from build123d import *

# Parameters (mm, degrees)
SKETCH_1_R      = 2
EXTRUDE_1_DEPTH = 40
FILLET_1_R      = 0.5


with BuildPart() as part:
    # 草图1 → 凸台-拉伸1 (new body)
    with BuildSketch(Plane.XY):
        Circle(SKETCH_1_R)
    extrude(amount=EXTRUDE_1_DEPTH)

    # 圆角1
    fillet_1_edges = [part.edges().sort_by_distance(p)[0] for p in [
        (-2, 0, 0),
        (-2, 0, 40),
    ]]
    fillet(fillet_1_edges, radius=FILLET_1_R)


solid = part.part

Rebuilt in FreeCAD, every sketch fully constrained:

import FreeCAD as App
import Part
import Sketcher
from FreeCAD import Vector
Q = App.Units.Quantity


def edges_at(feature, points):
    """Names of the edges that pass closest to the given points."""
    edges = feature.Shape.Edges
    near = lambda p: min(range(len(edges)), key=lambda i: edges[i].distToShape(Part.Vertex(*p))[0])
    return sorted({f"Edge{near(p) + 1}" for p in points})

doc = App.newDocument("Part")
body = doc.addObject("PartDesign::Body", "Body")

sketch1 = body.newObject("Sketcher::SketchObject", "Sketch")
sketch1.AttachmentSupport = (doc.getObject("XY_Plane"), [""])
sketch1.MapMode = "FlatFace"
sketch1.addGeometry(Part.Circle(Vector(0, 0, 0), Vector(0, 0, 1), 2), False)
sketch1.addConstraint([
    Sketcher.Constraint("Coincident", 0, 3, -1, 1),
    Sketcher.Constraint("Diameter", 0, Q("4 mm")),
])
pad1 = body.newObject("PartDesign::Pad", "Pad")
pad1.Profile = sketch1
pad1.Length = 40
doc.recompute()

fillet = body.newObject("PartDesign::Fillet", "Fillet")
fillet.Base = (pad1, edges_at(pad1, [(-2, 0, 0), (-2, 0, 40)]))
fillet.Radius = 0.5

doc.recompute()
